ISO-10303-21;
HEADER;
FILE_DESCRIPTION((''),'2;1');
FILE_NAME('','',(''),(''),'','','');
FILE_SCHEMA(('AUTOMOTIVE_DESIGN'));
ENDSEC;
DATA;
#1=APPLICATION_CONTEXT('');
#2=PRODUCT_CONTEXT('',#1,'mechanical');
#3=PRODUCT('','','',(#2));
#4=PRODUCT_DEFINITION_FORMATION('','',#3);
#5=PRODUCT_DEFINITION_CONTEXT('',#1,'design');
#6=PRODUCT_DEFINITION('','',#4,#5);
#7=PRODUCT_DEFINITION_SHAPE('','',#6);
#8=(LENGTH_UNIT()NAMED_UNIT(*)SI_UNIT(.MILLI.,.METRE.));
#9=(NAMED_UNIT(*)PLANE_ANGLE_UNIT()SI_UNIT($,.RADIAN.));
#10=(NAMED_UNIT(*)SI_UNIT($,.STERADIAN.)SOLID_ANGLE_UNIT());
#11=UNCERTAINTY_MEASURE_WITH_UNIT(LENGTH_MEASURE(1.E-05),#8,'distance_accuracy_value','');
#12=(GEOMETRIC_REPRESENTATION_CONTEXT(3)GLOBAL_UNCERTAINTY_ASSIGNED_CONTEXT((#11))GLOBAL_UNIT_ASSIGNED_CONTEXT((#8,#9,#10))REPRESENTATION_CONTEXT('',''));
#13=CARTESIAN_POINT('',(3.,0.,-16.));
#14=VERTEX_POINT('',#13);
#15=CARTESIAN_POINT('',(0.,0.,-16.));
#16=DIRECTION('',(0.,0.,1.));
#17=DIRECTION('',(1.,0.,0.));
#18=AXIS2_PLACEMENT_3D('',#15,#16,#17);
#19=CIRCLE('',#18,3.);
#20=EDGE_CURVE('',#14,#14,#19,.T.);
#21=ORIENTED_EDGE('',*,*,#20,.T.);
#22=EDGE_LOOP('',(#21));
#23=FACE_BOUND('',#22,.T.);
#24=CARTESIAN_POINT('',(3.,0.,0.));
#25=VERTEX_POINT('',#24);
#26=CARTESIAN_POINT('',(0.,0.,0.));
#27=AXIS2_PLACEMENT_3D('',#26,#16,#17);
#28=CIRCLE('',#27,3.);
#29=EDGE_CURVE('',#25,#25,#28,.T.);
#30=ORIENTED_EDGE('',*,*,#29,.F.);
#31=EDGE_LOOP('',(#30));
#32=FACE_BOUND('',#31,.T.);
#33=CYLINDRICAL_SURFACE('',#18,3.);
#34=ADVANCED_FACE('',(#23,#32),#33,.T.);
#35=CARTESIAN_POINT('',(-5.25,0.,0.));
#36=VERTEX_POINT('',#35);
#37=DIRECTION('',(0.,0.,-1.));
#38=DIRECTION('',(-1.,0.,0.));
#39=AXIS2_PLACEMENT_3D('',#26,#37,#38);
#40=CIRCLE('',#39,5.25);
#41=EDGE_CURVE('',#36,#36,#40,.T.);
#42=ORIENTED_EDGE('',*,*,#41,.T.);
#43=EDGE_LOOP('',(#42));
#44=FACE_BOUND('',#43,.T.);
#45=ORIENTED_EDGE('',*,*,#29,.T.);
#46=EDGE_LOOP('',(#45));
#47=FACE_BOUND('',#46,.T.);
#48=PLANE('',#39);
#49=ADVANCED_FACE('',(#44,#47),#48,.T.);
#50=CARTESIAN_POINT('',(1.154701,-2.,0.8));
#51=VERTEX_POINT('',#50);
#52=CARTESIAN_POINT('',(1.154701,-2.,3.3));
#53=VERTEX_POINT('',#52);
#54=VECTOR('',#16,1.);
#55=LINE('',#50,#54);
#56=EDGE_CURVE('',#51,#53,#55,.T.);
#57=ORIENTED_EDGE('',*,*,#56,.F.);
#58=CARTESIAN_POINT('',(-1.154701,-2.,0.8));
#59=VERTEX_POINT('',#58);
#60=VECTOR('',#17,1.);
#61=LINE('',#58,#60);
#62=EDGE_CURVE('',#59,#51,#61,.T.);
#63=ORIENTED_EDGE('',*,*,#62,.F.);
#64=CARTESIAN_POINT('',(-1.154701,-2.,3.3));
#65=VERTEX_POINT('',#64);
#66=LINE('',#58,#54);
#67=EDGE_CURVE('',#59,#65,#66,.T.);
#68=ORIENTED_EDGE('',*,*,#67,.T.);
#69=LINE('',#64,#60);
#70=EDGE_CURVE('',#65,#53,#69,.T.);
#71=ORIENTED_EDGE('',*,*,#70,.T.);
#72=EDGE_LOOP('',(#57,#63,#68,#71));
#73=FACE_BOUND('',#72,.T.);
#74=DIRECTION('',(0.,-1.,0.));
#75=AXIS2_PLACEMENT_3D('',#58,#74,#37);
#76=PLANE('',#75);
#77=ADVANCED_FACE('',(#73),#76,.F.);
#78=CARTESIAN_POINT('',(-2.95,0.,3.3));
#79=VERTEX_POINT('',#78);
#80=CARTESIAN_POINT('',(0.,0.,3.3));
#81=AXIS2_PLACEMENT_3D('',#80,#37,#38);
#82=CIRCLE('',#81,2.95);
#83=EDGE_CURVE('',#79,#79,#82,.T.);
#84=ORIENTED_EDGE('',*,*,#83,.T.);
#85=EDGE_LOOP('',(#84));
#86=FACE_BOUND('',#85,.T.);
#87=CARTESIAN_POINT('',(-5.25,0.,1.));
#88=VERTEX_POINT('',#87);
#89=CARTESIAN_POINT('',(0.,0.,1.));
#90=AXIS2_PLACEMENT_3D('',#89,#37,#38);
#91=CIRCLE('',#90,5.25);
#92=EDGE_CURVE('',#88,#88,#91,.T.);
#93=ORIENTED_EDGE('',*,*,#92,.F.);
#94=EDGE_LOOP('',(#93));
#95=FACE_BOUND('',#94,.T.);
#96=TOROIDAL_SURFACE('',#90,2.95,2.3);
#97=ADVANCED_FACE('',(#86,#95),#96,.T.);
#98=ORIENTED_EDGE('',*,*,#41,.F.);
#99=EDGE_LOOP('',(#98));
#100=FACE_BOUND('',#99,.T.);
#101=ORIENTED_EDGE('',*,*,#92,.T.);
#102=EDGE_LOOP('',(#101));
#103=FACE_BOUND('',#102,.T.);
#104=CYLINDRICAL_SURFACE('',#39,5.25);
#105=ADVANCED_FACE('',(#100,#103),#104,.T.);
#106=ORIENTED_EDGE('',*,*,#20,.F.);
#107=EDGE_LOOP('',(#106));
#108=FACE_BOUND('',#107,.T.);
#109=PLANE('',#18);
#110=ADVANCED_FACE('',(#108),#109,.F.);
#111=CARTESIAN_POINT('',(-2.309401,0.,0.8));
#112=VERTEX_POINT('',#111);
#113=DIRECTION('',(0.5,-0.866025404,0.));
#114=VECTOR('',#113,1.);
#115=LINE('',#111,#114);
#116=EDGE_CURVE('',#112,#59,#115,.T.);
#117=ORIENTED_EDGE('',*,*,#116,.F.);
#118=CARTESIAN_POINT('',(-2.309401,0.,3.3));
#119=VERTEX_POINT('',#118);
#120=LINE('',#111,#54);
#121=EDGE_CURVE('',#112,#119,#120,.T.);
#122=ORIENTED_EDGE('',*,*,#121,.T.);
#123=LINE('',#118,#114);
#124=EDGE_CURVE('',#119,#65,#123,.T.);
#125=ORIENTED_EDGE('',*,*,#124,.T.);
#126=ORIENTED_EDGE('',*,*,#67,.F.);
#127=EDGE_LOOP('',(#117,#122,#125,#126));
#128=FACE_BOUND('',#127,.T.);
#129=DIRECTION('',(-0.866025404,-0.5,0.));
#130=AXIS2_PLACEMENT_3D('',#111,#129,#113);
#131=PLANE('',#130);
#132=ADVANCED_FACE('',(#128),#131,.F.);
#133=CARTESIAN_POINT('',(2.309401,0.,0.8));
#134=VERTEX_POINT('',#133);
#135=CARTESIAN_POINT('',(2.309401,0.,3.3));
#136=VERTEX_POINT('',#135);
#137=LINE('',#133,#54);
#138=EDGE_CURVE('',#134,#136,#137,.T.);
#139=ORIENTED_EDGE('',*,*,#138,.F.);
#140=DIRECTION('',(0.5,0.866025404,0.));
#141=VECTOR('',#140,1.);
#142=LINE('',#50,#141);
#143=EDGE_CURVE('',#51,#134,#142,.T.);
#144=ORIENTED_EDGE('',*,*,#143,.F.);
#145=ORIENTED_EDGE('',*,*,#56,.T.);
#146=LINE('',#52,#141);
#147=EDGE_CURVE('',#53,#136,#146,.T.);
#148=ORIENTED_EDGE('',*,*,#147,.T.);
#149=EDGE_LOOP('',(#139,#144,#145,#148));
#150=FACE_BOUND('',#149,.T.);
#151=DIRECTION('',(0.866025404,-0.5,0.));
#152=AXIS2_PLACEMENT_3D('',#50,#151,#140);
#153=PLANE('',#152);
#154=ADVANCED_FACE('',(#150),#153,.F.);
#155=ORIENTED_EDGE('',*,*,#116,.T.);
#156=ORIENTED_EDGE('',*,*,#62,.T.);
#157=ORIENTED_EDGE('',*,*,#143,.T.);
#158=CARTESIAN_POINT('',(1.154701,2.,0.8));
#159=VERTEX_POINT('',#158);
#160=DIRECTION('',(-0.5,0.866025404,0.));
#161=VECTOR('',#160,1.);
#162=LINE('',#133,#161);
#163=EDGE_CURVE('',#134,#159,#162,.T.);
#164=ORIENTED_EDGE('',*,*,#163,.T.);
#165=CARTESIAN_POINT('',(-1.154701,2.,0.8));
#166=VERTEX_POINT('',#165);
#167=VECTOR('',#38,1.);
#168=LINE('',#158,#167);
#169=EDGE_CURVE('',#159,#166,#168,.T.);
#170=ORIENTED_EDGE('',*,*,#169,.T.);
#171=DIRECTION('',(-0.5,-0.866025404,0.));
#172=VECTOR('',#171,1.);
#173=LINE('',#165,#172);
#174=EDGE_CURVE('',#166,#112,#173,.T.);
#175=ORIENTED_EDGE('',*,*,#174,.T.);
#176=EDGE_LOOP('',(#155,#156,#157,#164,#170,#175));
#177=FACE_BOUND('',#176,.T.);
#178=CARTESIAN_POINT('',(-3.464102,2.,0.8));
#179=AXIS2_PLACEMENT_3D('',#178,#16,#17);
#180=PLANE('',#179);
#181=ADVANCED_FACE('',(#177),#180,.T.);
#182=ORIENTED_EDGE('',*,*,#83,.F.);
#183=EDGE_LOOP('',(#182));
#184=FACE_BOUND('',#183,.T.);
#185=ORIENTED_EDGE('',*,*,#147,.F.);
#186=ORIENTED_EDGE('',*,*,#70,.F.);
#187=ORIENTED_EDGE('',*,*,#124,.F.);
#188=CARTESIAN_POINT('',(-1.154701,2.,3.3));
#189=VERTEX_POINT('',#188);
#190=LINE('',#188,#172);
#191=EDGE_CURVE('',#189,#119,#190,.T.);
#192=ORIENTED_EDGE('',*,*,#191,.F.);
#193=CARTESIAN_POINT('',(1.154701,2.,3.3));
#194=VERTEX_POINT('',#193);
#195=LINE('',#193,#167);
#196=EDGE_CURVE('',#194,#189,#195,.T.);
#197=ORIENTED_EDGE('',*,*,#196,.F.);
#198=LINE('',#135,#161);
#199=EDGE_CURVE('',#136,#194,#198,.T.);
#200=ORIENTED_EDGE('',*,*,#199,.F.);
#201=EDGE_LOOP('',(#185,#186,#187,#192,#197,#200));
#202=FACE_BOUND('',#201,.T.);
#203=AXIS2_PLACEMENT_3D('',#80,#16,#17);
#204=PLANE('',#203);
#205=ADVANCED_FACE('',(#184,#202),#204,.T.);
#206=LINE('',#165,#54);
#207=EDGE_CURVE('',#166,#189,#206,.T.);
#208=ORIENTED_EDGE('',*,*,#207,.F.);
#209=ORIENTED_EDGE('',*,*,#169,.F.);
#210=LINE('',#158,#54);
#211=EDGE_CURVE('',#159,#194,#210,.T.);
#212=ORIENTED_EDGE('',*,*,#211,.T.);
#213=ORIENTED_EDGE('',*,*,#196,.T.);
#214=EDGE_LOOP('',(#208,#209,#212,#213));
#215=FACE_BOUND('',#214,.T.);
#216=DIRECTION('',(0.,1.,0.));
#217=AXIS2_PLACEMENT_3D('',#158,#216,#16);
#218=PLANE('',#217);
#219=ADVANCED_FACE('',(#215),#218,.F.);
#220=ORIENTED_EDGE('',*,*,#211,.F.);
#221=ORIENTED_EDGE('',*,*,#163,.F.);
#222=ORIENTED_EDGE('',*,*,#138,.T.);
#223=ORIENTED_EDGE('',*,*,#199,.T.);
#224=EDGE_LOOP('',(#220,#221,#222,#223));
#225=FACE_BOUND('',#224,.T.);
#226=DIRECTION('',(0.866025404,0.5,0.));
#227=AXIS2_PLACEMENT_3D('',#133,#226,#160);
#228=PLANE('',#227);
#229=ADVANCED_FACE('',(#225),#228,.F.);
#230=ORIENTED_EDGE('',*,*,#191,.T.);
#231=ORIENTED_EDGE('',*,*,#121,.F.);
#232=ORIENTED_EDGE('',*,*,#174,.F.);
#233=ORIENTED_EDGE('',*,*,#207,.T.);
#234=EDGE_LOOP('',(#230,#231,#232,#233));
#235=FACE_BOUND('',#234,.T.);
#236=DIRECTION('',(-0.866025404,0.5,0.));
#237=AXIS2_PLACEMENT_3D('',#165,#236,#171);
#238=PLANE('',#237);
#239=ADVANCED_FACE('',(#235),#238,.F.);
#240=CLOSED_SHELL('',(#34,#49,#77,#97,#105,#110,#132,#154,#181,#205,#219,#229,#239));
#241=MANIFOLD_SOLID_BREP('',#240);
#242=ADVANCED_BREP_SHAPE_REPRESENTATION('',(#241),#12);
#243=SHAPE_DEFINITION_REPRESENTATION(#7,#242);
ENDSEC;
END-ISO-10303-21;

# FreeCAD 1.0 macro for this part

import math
import FreeCAD as App
import Part
import Sketcher

V = App.Vector
Q = App.Units.Quantity

doc = App.newDocument("Part")
body = doc.addObject("PartDesign::Body", "Body")

# Sketch on XY plane
sketch1 = body.newObject("Sketcher::SketchObject", "Sketch")
sketch1.AttachmentSupport = (doc.getObject("XY_Plane"), [""])
sketch1.MapMode = "FlatFace"
sketch1.addGeometry(Part.Circle(V(0, 0, 0), V(0, 0, 1), 3), False)
sketch1.addConstraint([
    Sketcher.Constraint("Coincident", 0, 3, -1, 1),
    Sketcher.Constraint("Diameter", 0, 6.0),
])
pad1 = body.newObject("PartDesign::Pad", "Pad")
pad1.Profile = sketch1
pad1.Length = 16
pad1.Reversed = True

# Sketch on YZ plane
sketch2 = body.newObject("Sketcher::SketchObject", "Sketch001")
sketch2.AttachmentSupport = (doc.getObject("YZ_Plane"), [""])
sketch2.MapMode = "FlatFace"
sketch2.addGeometry([
    Part.LineSegment(V(0, 0, 0), V(5.2, 0, 0)),  # 0
    Part.LineSegment(V(5.2, 0, 0), V(5.2, 1, 0)),  # 1
    Part.ArcOfCircle(Part.Circle(V(3, 1, 0), V(0, 0, 1), 2.3), math.radians(0), math.radians(90)),  # 2
    Part.LineSegment(V(3, 3.3, 0), V(0, 3.3, 0)),  # 3
    Part.LineSegment(V(0, 3.3, 0), V(0, 0, 0)),  # 4
], False)
sketch2.addConstraint([
    Sketcher.Constraint("Coincident", 0, 2, 1, 1),
    Sketcher.Constraint("Tangent", 1, 2, 2, 1),
    Sketcher.Constraint("Tangent", 2, 2, 3, 1),
    Sketcher.Constraint("Coincident", 3, 2, 4, 1),
    Sketcher.Constraint("Coincident", 4, 2, 0, 1),
    Sketcher.Constraint("Horizontal", 0),
    Sketcher.Constraint("Vertical", 1),
    Sketcher.Constraint("Horizontal", 3),
    Sketcher.Constraint("Vertical", 4),
    Sketcher.Constraint("Coincident", 4, 2, -1, 1),
    Sketcher.Constraint("Radius", 2, 2.3),
    Sketcher.Constraint("DistanceY", 1, 1, 1, 2, 1.0),
    Sketcher.Constraint("DistanceX", 0, 1, 0, 2, 5.25),
])
revolution = body.newObject("PartDesign::Revolution", "Revolution")
revolution.Profile = sketch2
revolution.ReferenceAxis = (sketch2, ["V_Axis"])
revolution.Angle = 360

# Sketch on XY plane
sketch3 = body.newObject("Sketcher::SketchObject", "Sketch002")
sketch3.AttachmentSupport = (doc.getObject("XY_Plane"), [""])
sketch3.MapMode = "FlatFace"
sketch3.AttachmentOffset = App.Placement(V(0, 0, 3.3), App.Rotation())
sketch3.addGeometry([
    Part.LineSegment(V(-1.2, 2, 0), V(-2.3, 0, 0)),  # 0
    Part.LineSegment(V(-2.3, 0, 0), V(-1.2, -2, 0)),  # 1
    Part.LineSegment(V(-1.2, -2, 0), V(1.2, -2, 0)),  # 2
    Part.LineSegment(V(1.2, -2, 0), V(2.3, 0, 0)),  # 3
    Part.LineSegment(V(2.3, 0, 0), V(1.2, 2, 0)),  # 4
    Part.LineSegment(V(1.2, 2, 0), V(-1.2, 2, 0)),  # 5
], False)
sketch3.addConstraint([
    Sketcher.Constraint("Coincident", 0, 2, 1, 1),
    Sketcher.Constraint("Coincident", 1, 2, 2, 1),
    Sketcher.Constraint("Coincident", 2, 2, 3, 1),
    Sketcher.Constraint("Coincident", 3, 2, 4, 1),
    Sketcher.Constraint("Coincident", 4, 2, 5, 1),
    Sketcher.Constraint("Coincident", 5, 2, 0, 1),
    Sketcher.Constraint("Horizontal", 2),
    Sketcher.Constraint("Horizontal", 5),
    Sketcher.Constraint("Symmetric", 0, 2, 3, 2, -1, 1),
    Sketcher.Constraint("Symmetric", 1, 2, 4, 2, -1, 1),
    Sketcher.Constraint("PointOnObject", 0, 2, -1),
    Sketcher.Constraint("Parallel", 0, 3),
    Sketcher.Constraint("Vertical", 2, 2, 4, 2),
    Sketcher.Constraint("Angle", 0, Q("-120 deg")),
    Sketcher.Constraint("DistanceY", 1, 2, -1, 1, 2.0),
    Sketcher.Constraint("DistanceX", 2, 1, 2, 2, 2.309401),
])
pocket1 = body.newObject("PartDesign::Pocket", "Pocket")
pocket1.Profile = sketch3
pocket1.Length = 2.5

doc.recompute()
